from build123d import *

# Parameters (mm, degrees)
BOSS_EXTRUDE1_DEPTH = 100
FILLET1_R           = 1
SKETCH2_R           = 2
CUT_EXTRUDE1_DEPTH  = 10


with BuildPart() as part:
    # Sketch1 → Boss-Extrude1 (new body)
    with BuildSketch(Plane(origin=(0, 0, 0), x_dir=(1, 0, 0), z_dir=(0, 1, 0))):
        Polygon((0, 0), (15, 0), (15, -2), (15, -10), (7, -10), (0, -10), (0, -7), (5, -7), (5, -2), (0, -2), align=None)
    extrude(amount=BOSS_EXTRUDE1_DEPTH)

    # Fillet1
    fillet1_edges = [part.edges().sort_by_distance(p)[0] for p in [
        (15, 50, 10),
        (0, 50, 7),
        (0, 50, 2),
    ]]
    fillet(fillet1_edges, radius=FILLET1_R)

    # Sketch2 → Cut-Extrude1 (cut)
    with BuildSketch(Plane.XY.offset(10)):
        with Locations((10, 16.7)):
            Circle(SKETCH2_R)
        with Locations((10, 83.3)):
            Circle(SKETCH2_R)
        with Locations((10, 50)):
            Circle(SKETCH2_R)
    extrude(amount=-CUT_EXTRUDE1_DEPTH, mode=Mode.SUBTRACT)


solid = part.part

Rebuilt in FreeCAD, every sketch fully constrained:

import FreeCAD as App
import Part
import Sketcher
from FreeCAD import Vector


def edges_at(feature, points):
    """Names of the edges that pass closest to the given points."""
    edges = feature.Shape.Edges
    near = lambda p: min(range(len(edges)), key=lambda i: edges[i].distToShape(Part.Vertex(*p))[0])
    return sorted({f"Edge{near(p) + 1}" for p in points})


def add_polygon(sketch, points):
    """Adds a closed chain of lines whose ends are joined by coincident constraints."""
    first, n = sketch.GeometryCount, len(points)
    for a, b in zip(points, points[1:] + points[:1]):
        sketch.addGeometry(Part.LineSegment(App.Vector(*a, 0), App.Vector(*b, 0)), False)
    for i in range(n):
        sketch.addConstraint(Sketcher.Constraint("Coincident", first + i, 2, first + (i + 1) % n, 1))

doc = App.newDocument("Part")
params = doc.addObject("Spreadsheet::Sheet", "Params")
for row, (alias, value) in enumerate([
    ("sketch1_width", "15 mm"),
    ("sketch1_width2", "5 mm"),
    ("sketch1_height", "2 mm"),
    ("sketch1_height2", "3 mm"),
    ("pad1_length", "100 mm"),
    ("fillet_radius", "1 mm"),
    ("sketch2_diameter", "4 mm"),
    ("pocket1_length", "10 mm"),
], start=1):
    params.set(f"A{row}", alias)
    params.set(f"B{row}", "=" + value)
    params.setAlias(f"B{row}", alias)

body = doc.addObject("PartDesign::Body", "Body")

sketch1 = body.newObject("Sketcher::SketchObject", "Sketch")
sketch1.AttachmentSupport = (doc.getObject("XZ_Plane"), [""])
sketch1.MapMode = "FlatFace"
add_polygon(sketch1, [(15, 0), (0, 0), (0, 2), (5, 2), (5, 7), (0, 7), (0, 10), (15, 10)])
sketch1.addConstraint([
    Sketcher.Constraint("Horizontal", 0),
    Sketcher.Constraint("Vertical", 1),
    Sketcher.Constraint("Horizontal", 2),
    Sketcher.Constraint("Vertical", 3),
    Sketcher.Constraint("Horizontal", 4),
    Sketcher.Constraint("Vertical", 5),
    Sketcher.Constraint("Horizontal", 6),
    Sketcher.Constraint("Vertical", 7),
    Sketcher.Constraint("Coincident", 0, 2, -1, 1),
    Sketcher.Constraint("PointOnObject", 4, 2, -2),
    Sketcher.Constraint("Equal", 4, 3),
    Sketcher.Constraint("DistanceX", 0, 2, 0, 1, 15.0),
    Sketcher.Constraint("DistanceX", 2, 1, 2, 2, 5.0),
    Sketcher.Constraint("DistanceY", 1, 1, 1, 2, 2.0),
    Sketcher.Constraint("DistanceY", 5, 1, 5, 2, 3.0),
])
sketch1.setExpression("Constraints[19]", "Params.sketch1_width")
sketch1.setExpression("Constraints[20]", "Params.sketch1_width2")
sketch1.setExpression("Constraints[21]", "Params.sketch1_height")
sketch1.setExpression("Constraints[22]", "Params.sketch1_height2")
pad1 = body.newObject("PartDesign::Pad", "Pad")
pad1.Profile = sketch1
pad1.setExpression("Length", "Params.pad1_length")
pad1.Reversed = True
doc.recompute()

fillet = body.newObject("PartDesign::Fillet", "Fillet")
fillet.Base = (pad1, edges_at(pad1, [(15, 50, 10), (0, 50, 7), (0, 50, 2)]))
fillet.setExpression("Radius", "Params.fillet_radius")

sketch2 = body.newObject("Sketcher::SketchObject", "Sketch001")
sketch2.AttachmentSupport = (doc.getObject("XY_Plane"), [""])
sketch2.MapMode = "FlatFace"
sketch2.AttachmentOffset = App.Placement(Vector(0, 0, 10), App.Rotation())
sketch2.addGeometry([
    Part.Circle(Vector(10, 16.7, 0), Vector(0, 0, 1), 2),
    Part.Circle(Vector(10, 83.3, 0), Vector(0, 0, 1), 2),
    Part.Circle(Vector(10, 50, 0), Vector(0, 0, 1), 2),
], False)
sketch2.addConstraint([
    Sketcher.Constraint("Equal", 0, 1),
    Sketcher.Constraint("Equal", 1, 2),
    Sketcher.Constraint("Vertical", 0, 3, 1, 3),
    Sketcher.Constraint("Vertical", 1, 3, 2, 3),
    Sketcher.Constraint("Diameter", 0, 4.0),
    Sketcher.Constraint("DistanceX", -1, 1, 0, 3, 10.0),
    Sketcher.Constraint("DistanceY", -1, 1, 2, 3, 50.0),
    Sketcher.Constraint("DistanceY", -1, 1, 0, 3, 16.7),
    Sketcher.Constraint("DistanceY", -1, 1, 1, 3, 83.3),
])
sketch2.setExpression("Constraints[4]", "Params.sketch2_diameter")
pocket1 = body.newObject("PartDesign::Pocket", "Pocket")
pocket1.Profile = sketch2
pocket1.setExpression("Length", "Params.pocket1_length")

doc.recompute()
